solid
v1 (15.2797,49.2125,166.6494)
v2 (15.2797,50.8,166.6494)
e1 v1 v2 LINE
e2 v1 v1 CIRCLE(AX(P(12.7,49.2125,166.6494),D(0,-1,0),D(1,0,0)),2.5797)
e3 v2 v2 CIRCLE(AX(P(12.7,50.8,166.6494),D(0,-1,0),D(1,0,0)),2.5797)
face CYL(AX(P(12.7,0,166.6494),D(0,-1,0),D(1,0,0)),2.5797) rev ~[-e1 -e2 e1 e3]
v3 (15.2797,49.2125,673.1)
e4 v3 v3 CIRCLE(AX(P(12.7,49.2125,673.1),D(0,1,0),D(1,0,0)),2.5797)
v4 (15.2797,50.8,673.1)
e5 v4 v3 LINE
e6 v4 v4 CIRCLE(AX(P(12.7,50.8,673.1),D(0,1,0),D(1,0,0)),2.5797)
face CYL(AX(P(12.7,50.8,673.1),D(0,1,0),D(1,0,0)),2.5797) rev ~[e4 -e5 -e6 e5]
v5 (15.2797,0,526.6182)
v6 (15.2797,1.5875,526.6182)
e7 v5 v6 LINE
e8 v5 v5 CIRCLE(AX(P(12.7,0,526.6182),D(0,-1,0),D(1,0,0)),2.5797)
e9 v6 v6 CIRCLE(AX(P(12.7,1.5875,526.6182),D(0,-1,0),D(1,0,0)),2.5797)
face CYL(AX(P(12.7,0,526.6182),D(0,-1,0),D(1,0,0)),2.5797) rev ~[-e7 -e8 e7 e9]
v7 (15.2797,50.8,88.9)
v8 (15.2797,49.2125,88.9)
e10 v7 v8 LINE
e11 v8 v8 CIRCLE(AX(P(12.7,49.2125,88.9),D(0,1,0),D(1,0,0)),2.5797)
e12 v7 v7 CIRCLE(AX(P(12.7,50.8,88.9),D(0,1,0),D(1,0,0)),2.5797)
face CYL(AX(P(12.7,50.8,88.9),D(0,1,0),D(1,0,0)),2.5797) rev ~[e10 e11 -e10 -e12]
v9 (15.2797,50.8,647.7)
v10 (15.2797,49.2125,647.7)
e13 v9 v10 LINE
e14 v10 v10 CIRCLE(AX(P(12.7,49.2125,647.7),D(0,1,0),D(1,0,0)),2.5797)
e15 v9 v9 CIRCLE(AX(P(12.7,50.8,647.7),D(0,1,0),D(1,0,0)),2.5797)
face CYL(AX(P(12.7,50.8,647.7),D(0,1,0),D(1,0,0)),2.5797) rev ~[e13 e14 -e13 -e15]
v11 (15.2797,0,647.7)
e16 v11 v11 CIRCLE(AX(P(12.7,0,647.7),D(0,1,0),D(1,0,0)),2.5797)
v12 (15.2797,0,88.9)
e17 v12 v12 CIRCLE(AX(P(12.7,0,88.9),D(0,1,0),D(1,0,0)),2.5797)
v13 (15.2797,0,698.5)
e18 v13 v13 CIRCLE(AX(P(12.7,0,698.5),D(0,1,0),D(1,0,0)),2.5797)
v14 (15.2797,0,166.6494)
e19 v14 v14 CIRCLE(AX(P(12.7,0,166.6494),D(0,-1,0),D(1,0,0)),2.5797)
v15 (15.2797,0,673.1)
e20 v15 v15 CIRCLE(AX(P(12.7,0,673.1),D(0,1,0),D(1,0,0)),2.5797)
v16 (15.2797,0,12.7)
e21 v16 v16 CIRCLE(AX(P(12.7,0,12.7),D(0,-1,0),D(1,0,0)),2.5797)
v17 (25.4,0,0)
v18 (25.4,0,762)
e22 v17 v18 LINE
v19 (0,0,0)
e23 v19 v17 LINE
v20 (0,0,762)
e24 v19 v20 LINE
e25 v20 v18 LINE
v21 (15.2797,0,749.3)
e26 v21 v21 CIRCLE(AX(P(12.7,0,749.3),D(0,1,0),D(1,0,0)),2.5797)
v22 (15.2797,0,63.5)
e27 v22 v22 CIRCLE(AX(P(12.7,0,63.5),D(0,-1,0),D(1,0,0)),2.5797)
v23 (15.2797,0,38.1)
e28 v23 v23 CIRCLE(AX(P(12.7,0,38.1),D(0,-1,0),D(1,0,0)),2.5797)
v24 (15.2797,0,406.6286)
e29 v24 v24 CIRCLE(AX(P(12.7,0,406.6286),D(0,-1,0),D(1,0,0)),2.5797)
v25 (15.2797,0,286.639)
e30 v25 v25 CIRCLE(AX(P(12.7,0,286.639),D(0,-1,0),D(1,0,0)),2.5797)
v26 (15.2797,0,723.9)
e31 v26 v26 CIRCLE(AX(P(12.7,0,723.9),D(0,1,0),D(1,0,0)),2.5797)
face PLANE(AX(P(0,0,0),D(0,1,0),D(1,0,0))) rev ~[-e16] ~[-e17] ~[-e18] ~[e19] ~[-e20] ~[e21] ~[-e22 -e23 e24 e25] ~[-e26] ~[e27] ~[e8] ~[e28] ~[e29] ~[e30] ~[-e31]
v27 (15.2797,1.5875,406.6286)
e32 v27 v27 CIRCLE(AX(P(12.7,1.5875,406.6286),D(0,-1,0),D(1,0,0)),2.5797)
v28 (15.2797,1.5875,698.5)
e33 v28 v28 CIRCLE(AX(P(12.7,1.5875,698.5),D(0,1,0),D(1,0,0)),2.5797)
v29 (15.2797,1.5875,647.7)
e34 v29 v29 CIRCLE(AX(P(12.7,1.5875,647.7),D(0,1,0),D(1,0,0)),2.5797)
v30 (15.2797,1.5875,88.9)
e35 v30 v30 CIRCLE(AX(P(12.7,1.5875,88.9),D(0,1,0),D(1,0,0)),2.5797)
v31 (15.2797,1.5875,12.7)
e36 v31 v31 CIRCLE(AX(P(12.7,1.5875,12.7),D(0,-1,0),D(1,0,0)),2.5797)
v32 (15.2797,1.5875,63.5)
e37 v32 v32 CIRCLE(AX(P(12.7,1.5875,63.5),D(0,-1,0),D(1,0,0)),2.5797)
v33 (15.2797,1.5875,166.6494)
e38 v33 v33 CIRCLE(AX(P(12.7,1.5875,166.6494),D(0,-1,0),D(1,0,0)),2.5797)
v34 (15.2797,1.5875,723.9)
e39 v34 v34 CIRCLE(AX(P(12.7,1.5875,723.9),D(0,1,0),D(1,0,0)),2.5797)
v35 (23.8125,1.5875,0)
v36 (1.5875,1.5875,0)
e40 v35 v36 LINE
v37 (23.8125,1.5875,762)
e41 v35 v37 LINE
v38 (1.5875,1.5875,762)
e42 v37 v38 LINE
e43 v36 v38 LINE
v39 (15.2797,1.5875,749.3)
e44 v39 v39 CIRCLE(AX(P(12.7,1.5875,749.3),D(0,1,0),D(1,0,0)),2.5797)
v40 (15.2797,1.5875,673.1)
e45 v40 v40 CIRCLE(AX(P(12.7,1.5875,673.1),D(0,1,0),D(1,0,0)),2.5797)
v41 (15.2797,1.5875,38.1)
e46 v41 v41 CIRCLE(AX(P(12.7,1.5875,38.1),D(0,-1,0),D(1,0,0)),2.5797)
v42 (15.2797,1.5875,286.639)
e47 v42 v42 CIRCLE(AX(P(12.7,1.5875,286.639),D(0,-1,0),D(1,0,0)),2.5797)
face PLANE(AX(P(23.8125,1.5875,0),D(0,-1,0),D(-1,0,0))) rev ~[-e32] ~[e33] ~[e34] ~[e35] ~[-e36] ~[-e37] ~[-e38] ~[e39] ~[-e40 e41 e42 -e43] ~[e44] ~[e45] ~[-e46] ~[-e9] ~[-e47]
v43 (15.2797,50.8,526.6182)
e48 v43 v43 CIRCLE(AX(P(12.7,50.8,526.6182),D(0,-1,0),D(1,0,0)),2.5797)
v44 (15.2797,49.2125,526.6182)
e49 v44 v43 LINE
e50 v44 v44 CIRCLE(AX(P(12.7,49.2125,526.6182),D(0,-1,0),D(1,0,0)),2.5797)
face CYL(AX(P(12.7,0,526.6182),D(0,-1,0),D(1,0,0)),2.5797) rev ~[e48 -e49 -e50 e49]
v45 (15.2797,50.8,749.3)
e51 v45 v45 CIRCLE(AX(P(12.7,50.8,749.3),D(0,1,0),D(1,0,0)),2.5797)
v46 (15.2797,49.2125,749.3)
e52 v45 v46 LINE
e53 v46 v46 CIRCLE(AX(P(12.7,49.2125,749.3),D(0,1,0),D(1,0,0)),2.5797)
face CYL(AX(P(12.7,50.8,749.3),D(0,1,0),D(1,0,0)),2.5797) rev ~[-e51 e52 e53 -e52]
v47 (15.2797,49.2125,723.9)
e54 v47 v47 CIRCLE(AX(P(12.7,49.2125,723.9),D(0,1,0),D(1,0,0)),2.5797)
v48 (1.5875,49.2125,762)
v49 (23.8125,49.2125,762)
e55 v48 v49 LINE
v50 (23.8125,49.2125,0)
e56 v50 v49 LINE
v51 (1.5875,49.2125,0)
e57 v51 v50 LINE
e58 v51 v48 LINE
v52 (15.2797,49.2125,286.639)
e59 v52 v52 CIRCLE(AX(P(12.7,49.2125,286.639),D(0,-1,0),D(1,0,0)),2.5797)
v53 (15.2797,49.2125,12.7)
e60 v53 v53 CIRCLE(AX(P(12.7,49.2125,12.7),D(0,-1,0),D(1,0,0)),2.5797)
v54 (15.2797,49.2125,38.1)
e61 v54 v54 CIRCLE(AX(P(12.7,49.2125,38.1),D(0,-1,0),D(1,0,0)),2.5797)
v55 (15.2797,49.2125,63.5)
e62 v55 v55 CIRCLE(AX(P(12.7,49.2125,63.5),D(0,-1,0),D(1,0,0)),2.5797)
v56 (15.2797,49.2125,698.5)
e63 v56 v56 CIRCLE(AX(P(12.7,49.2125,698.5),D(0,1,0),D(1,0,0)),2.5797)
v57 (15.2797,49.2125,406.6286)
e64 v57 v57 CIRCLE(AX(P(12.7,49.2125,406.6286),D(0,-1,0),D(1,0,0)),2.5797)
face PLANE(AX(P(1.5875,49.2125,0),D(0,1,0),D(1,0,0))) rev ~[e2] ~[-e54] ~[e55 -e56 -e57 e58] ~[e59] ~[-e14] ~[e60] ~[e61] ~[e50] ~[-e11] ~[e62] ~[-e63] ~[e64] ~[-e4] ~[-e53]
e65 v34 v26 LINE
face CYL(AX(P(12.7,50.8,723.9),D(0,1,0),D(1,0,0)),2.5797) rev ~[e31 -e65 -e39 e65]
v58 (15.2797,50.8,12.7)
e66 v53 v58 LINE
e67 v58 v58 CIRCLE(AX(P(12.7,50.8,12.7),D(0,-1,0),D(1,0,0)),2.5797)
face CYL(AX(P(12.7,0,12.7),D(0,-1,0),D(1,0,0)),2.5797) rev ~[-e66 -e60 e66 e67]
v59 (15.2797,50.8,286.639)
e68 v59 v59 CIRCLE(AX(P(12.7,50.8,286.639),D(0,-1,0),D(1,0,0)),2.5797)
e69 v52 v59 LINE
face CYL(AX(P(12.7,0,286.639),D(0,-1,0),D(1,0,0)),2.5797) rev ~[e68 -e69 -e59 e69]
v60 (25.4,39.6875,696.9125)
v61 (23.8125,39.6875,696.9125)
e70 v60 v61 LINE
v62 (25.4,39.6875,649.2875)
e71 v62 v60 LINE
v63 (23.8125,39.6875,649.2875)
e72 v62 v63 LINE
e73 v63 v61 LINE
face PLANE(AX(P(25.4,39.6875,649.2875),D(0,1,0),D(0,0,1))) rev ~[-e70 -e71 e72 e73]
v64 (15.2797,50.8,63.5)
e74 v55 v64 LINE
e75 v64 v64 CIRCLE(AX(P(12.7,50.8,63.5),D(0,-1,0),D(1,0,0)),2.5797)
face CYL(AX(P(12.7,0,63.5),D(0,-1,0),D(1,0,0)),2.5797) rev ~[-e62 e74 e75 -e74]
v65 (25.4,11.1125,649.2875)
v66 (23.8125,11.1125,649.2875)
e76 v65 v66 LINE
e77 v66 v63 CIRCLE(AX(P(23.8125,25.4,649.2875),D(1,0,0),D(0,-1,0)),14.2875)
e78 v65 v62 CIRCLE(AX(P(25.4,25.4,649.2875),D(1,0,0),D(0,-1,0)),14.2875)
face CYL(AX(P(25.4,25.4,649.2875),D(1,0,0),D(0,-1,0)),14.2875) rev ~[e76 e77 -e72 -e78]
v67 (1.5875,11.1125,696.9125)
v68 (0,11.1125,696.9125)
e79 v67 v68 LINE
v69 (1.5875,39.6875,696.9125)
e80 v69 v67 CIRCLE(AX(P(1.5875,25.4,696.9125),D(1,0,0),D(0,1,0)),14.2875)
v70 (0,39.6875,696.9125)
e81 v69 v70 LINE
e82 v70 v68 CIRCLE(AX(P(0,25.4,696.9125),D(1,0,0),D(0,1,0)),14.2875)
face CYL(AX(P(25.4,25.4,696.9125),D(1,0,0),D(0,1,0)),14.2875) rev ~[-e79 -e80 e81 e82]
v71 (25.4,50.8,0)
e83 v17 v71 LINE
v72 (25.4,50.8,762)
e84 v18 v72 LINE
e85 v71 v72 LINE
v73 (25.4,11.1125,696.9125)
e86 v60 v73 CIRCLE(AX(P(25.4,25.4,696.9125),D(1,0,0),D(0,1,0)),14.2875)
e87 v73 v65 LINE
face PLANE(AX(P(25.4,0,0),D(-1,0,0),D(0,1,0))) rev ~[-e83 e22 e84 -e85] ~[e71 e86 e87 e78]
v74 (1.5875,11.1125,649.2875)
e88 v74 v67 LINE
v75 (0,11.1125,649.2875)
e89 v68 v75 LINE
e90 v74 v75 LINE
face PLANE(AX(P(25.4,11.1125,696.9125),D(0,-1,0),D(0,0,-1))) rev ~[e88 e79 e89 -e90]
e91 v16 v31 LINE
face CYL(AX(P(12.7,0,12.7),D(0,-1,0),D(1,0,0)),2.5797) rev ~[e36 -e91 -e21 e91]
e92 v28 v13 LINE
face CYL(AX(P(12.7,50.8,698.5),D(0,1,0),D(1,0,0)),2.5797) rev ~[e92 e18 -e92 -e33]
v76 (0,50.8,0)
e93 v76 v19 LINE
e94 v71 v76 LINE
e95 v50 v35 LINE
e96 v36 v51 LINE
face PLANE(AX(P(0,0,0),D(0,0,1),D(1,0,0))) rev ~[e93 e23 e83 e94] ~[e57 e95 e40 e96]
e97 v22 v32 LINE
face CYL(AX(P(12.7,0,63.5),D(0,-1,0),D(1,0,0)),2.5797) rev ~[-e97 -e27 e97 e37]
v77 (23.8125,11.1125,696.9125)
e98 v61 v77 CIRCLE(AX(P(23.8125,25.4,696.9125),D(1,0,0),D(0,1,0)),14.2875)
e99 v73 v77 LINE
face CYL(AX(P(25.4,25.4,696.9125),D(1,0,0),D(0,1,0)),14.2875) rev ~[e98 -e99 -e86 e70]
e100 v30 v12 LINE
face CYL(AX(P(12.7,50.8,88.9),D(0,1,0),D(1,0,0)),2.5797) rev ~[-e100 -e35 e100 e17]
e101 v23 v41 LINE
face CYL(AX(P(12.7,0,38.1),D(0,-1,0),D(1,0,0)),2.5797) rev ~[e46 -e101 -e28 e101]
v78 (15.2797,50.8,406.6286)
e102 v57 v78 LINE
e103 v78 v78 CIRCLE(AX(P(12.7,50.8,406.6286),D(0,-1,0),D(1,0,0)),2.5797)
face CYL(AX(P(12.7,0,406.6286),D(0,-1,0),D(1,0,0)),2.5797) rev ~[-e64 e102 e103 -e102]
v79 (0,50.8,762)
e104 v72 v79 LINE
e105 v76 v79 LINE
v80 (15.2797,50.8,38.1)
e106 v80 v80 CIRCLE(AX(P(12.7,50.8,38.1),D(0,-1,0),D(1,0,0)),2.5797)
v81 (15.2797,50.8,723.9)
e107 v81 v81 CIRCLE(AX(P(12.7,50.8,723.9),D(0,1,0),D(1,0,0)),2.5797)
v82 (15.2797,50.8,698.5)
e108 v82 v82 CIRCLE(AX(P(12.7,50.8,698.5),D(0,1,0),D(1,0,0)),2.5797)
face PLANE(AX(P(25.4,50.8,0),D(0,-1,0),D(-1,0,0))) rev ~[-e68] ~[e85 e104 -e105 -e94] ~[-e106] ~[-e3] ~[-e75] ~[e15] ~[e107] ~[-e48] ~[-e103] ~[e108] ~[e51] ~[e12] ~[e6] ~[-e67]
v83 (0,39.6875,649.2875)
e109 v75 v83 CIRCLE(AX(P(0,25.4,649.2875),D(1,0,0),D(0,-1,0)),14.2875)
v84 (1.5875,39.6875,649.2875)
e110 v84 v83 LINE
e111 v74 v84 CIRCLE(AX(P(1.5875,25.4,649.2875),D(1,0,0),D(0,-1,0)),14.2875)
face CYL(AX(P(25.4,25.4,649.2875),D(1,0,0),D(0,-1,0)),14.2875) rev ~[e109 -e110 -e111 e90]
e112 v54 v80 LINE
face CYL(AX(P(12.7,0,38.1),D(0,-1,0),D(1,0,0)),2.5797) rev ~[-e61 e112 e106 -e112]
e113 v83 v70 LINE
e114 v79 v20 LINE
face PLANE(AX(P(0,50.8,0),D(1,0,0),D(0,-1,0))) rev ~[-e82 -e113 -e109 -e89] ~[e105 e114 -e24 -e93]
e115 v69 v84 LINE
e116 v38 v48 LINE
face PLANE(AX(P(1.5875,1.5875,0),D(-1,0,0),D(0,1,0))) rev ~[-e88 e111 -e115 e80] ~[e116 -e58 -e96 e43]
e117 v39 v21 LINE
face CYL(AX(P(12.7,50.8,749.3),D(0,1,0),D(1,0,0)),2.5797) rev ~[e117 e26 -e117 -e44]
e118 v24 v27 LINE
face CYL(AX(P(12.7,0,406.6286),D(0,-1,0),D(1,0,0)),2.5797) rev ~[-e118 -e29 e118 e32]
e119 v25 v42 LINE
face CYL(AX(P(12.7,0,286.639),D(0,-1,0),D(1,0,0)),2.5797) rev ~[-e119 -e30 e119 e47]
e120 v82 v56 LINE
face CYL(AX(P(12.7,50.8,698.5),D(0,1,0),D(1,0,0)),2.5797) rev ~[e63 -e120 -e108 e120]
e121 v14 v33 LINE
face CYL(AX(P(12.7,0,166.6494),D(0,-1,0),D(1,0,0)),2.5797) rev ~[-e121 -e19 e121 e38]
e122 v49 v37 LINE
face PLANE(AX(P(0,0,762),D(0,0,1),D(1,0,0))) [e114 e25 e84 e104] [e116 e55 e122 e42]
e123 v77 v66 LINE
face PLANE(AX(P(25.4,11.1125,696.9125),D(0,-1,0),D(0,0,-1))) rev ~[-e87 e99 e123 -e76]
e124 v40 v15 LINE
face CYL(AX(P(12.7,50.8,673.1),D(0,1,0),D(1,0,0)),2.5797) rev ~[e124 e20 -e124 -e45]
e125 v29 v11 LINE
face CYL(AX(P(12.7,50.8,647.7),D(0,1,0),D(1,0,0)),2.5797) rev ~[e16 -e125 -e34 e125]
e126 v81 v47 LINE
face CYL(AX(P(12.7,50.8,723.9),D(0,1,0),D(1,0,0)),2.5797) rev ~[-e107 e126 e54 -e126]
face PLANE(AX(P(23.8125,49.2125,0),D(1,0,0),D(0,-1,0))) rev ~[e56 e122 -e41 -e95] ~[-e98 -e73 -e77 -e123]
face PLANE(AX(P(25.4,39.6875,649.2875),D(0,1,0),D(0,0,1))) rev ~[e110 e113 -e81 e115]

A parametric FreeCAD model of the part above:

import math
import FreeCAD as App
import Part
import Sketcher
from FreeCAD import Vector
Q = App.Units.Quantity

doc = App.newDocument("Part")
body = doc.addObject("PartDesign::Body", "Body")

# Sketch on XY plane
sketch1 = doc.addObject("Sketcher::SketchObject", "Sketch")
body.addObject(sketch1)
sketch1.AttachmentSupport = (doc.XY_Plane, [""])
sketch1.MapMode = "FlatFace"
sketch1.addGeometry(Part.LineSegment(Vector(0, 51, 0), Vector(0, 0, 0)), False)
sketch1.addGeometry(Part.LineSegment(Vector(0, 0, 0), Vector(25, 0, 0)), False)
sketch1.addGeometry(Part.LineSegment(Vector(25, 0, 0), Vector(25, 51, 0)), False)
sketch1.addGeometry(Part.LineSegment(Vector(25, 51, 0), Vector(0, 51, 0)), False)
sketch1.addGeometry(Part.LineSegment(Vector(2, 49, 0), Vector(24, 49, 0)), False)
sketch1.addGeometry(Part.LineSegment(Vector(24, 49, 0), Vector(24, 2, 0)), False)
sketch1.addGeometry(Part.LineSegment(Vector(24, 2, 0), Vector(2, 2, 0)), False)
sketch1.addGeometry(Part.LineSegment(Vector(2, 2, 0), Vector(2, 49, 0)), False)
sketch1.addConstraint(Sketcher.Constraint("Coincident", 0, 2, 1, 1))
sketch1.addConstraint(Sketcher.Constraint("Coincident", 1, 2, 2, 1))
sketch1.addConstraint(Sketcher.Constraint("Coincident", 2, 2, 3, 1))
sketch1.addConstraint(Sketcher.Constraint("Coincident", 3, 2, 0, 1))
sketch1.addConstraint(Sketcher.Constraint("Coincident", 4, 2, 5, 1))
sketch1.addConstraint(Sketcher.Constraint("Coincident", 5, 2, 6, 1))
sketch1.addConstraint(Sketcher.Constraint("Coincident", 6, 2, 7, 1))
sketch1.addConstraint(Sketcher.Constraint("Coincident", 7, 2, 4, 1))
sketch1.addConstraint(Sketcher.Constraint("Vertical", 0))
sketch1.addConstraint(Sketcher.Constraint("Horizontal", 1))
sketch1.addConstraint(Sketcher.Constraint("Vertical", 2))
sketch1.addConstraint(Sketcher.Constraint("Horizontal", 3))
sketch1.addConstraint(Sketcher.Constraint("Horizontal", 4))
sketch1.addConstraint(Sketcher.Constraint("Vertical", 5))
sketch1.addConstraint(Sketcher.Constraint("Horizontal", 6))
sketch1.addConstraint(Sketcher.Constraint("Vertical", 7))
sketch1.addConstraint(Sketcher.Constraint("Coincident", 0, 2, -1, 1))
sketch1.addConstraint(Sketcher.Constraint("DistanceX", 1, 1, 1, 2, Q("1 in")))
sketch1.addConstraint(Sketcher.Constraint("DistanceY", 0, 2, 0, 1, Q("2 in")))
sketch1.addConstraint(Sketcher.Constraint("DistanceY", -1, 1, 5, 2, Q("0.0625 in")))
sketch1.addConstraint(Sketcher.Constraint("DistanceX", -1, 1, 6, 2, Q("0.0625 in")))
sketch1.addConstraint(Sketcher.Constraint("DistanceX", 4, 2, 2, 2, Q("0.0625 in")))
sketch1.addConstraint(Sketcher.Constraint("DistanceY", 4, 2, 2, 2, Q("0.0625 in")))
pad1 = doc.addObject("PartDesign::Pad", "Pad")
body.addObject(pad1)
pad1.Profile = sketch1
pad1.Length = Q("30 in")

# Sketch on XZ plane
sketch2 = doc.addObject("Sketcher::SketchObject", "Sketch001")
body.addObject(sketch2)
sketch2.AttachmentSupport = (doc.XZ_Plane, [""])
sketch2.MapMode = "FlatFace"
sketch2.AttachmentOffset = App.Placement(Vector(0, 0, -2 * 25.4), App.Rotation())
sketch2.addGeometry(Part.Circle(Vector(12.7, 749.3, 0), Vector(0, 0, 1), 2.6), False)
sketch2.addConstraint(Sketcher.Constraint("Diameter", 0, Q("0.203126 in")))
sketch2.addConstraint(Sketcher.Constraint("DistanceX", -1, 1, 0, 3, Q("0.5 in")))
sketch2.addConstraint(Sketcher.Constraint("DistanceY", -1, 1, 0, 3, Q("29.5 in")))
pocket1 = doc.addObject("PartDesign::Pocket", "Pocket")
body.addObject(pocket1)
pocket1.Profile = sketch2
pocket1.Length = Q("20.6875 in")
pocket1.Reversed = True

# Sketch on XZ plane
sketch3 = doc.addObject("Sketcher::SketchObject", "Sketch002")
body.addObject(sketch3)
sketch3.AttachmentSupport = (doc.XZ_Plane, [""])
sketch3.MapMode = "FlatFace"
sketch3.AttachmentOffset = App.Placement(Vector(0, 0, -2 * 25.4), App.Rotation())
sketch3.addGeometry(Part.Circle(Vector(12.7, 698.5, 0), Vector(0, 0, 1), 2.6), False)
sketch3.addGeometry(Part.Circle(Vector(12.7, 673.1, 0), Vector(0, 0, 1), 2.6), False)
sketch3.addGeometry(Part.Circle(Vector(12.7, 647.7, 0), Vector(0, 0, 1), 2.6), False)
sketch3.addConstraint(Sketcher.Constraint("Equal", 0, 1))
sketch3.addConstraint(Sketcher.Constraint("Equal", 1, 2))
sketch3.addConstraint(Sketcher.Constraint("Vertical", 0, 3, 1, 3))
sketch3.addConstraint(Sketcher.Constraint("Vertical", 1, 3, 2, 3))
sketch3.addConstraint(Sketcher.Constraint("Diameter", 0, Q("0.203126 in")))
sketch3.addConstraint(Sketcher.Constraint("DistanceY", 1, 3, 0, 3, Q("1 in")))
sketch3.addConstraint(Sketcher.Constraint("DistanceY", 2, 3, 1, 3, Q("1 in")))
sketch3.addConstraint(Sketcher.Constraint("DistanceX", -1, 1, 0, 3, Q("0.5 in")))
sketch3.addConstraint(Sketcher.Constraint("DistanceY", -1, 1, 0, 3, Q("27.5 in")))
pocket2 = doc.addObject("PartDesign::Pocket", "Pocket001")
body.addObject(pocket2)
pocket2.Profile = sketch3
pocket2.Length = Q("4.25 in")
pocket2.Reversed = True

# Sketch on XZ plane
sketch4 = doc.addObject("Sketcher::SketchObject", "Sketch003")
body.addObject(sketch4)
sketch4.AttachmentSupport = (doc.XZ_Plane, [""])
sketch4.MapMode = "FlatFace"
sketch4.addGeometry(Part.Circle(Vector(12.7, 12.7, 0), Vector(0, 0, 1), 2.6), False)
sketch4.addGeometry(Part.Circle(Vector(12.7, 38.1, 0), Vector(0, 0, 1), 2.6), False)
sketch4.addGeometry(Part.Circle(Vector(12.7, 63.5, 0), Vector(0, 0, 1), 2.6), False)
sketch4.addGeometry(Part.Circle(Vector(12.7, 166.6, 0), Vector(0, 0, 1), 2.6), False)
sketch4.addGeometry(Part.Circle(Vector(12.7, 286.6, 0), Vector(0, 0, 1), 2.6), False)
sketch4.addGeometry(Part.Circle(Vector(12.7, 406.6, 0), Vector(0, 0, 1), 2.6), False)
sketch4.addGeometry(Part.Circle(Vector(12.7, 526.6, 0), Vector(0, 0, 1), 2.6), False)
sketch4.addConstraint(Sketcher.Constraint("Equal", 0, 1))
sketch4.addConstraint(Sketcher.Constraint("Equal", 1, 2))
sketch4.addConstraint(Sketcher.Constraint("Equal", 2, 3))
sketch4.addConstraint(Sketcher.Constraint("Equal", 3, 4))
sketch4.addConstraint(Sketcher.Constraint("Equal", 4, 5))
sketch4.addConstraint(Sketcher.Constraint("Equal", 5, 6))
sketch4.addConstraint(Sketcher.Constraint("Vertical", 0, 3, 1, 3))
sketch4.addConstraint(Sketcher.Constraint("Vertical", 1, 3, 2, 3))
sketch4.addConstraint(Sketcher.Constraint("Vertical", 2, 3, 3, 3))
sketch4.addConstraint(Sketcher.Constraint("Vertical", 3, 3, 4, 3))
sketch4.addConstraint(Sketcher.Constraint("Vertical", 4, 3, 5, 3))
sketch4.addConstraint(Sketcher.Constraint("Vertical", 5, 3, 6, 3))
sketch4.addConstraint(Sketcher.Constraint("Diameter", 0, Q("0.203126 in")))
sketch4.addConstraint(Sketcher.Constraint("DistanceY", 0, 3, 1, 3, Q("1 in")))
sketch4.addConstraint(Sketcher.Constraint("DistanceY", 1, 3, 2, 3, Q("1 in")))
sketch4.addConstraint(Sketcher.Constraint("DistanceX", -1, 1, 0, 3, Q("0.5 in")))
sketch4.addConstraint(Sketcher.Constraint("DistanceY", -1, 1, 0, 3, Q("0.5 in")))
sketch4.addConstraint(Sketcher.Constraint("DistanceY", 3, 3, 4, 3, Q("4.724 in")))
sketch4.addConstraint(Sketcher.Constraint("DistanceY", 4, 3, 5, 3, Q("4.724 in")))
sketch4.addConstraint(Sketcher.Constraint("DistanceY", 5, 3, 6, 3, Q("4.724 in")))
sketch4.addConstraint(Sketcher.Constraint("DistanceY", -1, 1, 3, 3, Q("6.561 in")))
pocket3 = doc.addObject("PartDesign::Pocket", "Pocket002")
body.addObject(pocket3)
pocket3.Profile = sketch4
pocket3.Length = Q("4.25 in")

# Sketch on YZ plane
sketch5 = doc.addObject("Sketcher::SketchObject", "Sketch004")
body.addObject(sketch5)
sketch5.AttachmentSupport = (doc.YZ_Plane, [""])
sketch5.MapMode = "FlatFace"
sketch5.AttachmentOffset = App.Placement(Vector(0, 0, 1 * 25.4), App.Rotation())
sketch5.addGeometry(Part.ArcOfCircle(Part.Circle(Vector(25, 649, 0), Vector(0, 0, 1), 14), math.radians(180), math.radians(360)), False)
sketch5.addGeometry(Part.LineSegment(Vector(40, 649, 0), Vector(40, 697, 0)), False)
sketch5.addGeometry(Part.ArcOfCircle(Part.Circle(Vector(25, 697, 0), Vector(0, 0, 1), 14), math.radians(0), math.radians(180)), False)
sketch5.addGeometry(Part.LineSegment(Vector(11, 697, 0), Vector(11, 649, 0)), False)
sketch5.addConstraint(Sketcher.Constraint("Tangent", 0, 2, 1, 1))
sketch5.addConstraint(Sketcher.Constraint("Tangent", 1, 2, 2, 1))
sketch5.addConstraint(Sketcher.Constraint("Tangent", 2, 2, 3, 1))
sketch5.addConstraint(Sketcher.Constraint("Tangent", 3, 2, 0, 1))
sketch5.addConstraint(Sketcher.Constraint("Vertical", 1))
sketch5.addConstraint(Sketcher.Constraint("Vertical", 3))
sketch5.addConstraint(Sketcher.Constraint("Radius", 0, Q("0.5625 in")))
sketch5.addConstraint(Sketcher.Constraint("DistanceX", -1, 1, 0, 3, Q("1 in")))
sketch5.addConstraint(Sketcher.Constraint("DistanceY", 1, 1, 1, 2, Q("1.875 in")))
sketch5.addConstraint(Sketcher.Constraint("DistanceY", -1, 1, 0, 3, Q("25.5625 in")))
pocket4 = doc.addObject("PartDesign::Pocket", "Pocket003")
body.addObject(pocket4)
pocket4.Profile = sketch5
pocket4.Length = Q("1 in")

# Sketch on XZ plane
sketch6 = doc.addObject("Sketcher::SketchObject", "Sketch005")
body.addObject(sketch6)
sketch6.AttachmentSupport = (doc.XZ_Plane, [""])
sketch6.MapMode = "FlatFace"
sketch6.AttachmentOffset = App.Placement(Vector(0, 0, -2 * 25.4), App.Rotation())
sketch6.addGeometry(Part.Circle(Vector(12.7, 723.9, 0), Vector(0, 0, 1), 2.6), False)
sketch6.addGeometry(Part.Circle(Vector(12.7, 88.9, 0), Vector(0, 0, 1), 2.6), False)
sketch6.addConstraint(Sketcher.Constraint("Equal", 0, 1))
sketch6.addConstraint(Sketcher.Constraint("Vertical", 0, 3, 1, 3))
sketch6.addConstraint(Sketcher.Constraint("Diameter", 0, Q("0.203126 in")))
sketch6.addConstraint(Sketcher.Constraint("DistanceY", -1, 1, 1, 3, Q("3.5 in")))
sketch6.addConstraint(Sketcher.Constraint("DistanceY", 1, 3, 0, 3, Q("25 in")))
sketch6.addConstraint(Sketcher.Constraint("DistanceX", -1, 1, 0, 3, Q("0.5 in")))
pocket5 = doc.addObject("PartDesign::Pocket", "Pocket004")
body.addObject(pocket5)
pocket5.Profile = sketch6
pocket5.Length = Q("2 in")
pocket5.Reversed = True

doc.recompute()
